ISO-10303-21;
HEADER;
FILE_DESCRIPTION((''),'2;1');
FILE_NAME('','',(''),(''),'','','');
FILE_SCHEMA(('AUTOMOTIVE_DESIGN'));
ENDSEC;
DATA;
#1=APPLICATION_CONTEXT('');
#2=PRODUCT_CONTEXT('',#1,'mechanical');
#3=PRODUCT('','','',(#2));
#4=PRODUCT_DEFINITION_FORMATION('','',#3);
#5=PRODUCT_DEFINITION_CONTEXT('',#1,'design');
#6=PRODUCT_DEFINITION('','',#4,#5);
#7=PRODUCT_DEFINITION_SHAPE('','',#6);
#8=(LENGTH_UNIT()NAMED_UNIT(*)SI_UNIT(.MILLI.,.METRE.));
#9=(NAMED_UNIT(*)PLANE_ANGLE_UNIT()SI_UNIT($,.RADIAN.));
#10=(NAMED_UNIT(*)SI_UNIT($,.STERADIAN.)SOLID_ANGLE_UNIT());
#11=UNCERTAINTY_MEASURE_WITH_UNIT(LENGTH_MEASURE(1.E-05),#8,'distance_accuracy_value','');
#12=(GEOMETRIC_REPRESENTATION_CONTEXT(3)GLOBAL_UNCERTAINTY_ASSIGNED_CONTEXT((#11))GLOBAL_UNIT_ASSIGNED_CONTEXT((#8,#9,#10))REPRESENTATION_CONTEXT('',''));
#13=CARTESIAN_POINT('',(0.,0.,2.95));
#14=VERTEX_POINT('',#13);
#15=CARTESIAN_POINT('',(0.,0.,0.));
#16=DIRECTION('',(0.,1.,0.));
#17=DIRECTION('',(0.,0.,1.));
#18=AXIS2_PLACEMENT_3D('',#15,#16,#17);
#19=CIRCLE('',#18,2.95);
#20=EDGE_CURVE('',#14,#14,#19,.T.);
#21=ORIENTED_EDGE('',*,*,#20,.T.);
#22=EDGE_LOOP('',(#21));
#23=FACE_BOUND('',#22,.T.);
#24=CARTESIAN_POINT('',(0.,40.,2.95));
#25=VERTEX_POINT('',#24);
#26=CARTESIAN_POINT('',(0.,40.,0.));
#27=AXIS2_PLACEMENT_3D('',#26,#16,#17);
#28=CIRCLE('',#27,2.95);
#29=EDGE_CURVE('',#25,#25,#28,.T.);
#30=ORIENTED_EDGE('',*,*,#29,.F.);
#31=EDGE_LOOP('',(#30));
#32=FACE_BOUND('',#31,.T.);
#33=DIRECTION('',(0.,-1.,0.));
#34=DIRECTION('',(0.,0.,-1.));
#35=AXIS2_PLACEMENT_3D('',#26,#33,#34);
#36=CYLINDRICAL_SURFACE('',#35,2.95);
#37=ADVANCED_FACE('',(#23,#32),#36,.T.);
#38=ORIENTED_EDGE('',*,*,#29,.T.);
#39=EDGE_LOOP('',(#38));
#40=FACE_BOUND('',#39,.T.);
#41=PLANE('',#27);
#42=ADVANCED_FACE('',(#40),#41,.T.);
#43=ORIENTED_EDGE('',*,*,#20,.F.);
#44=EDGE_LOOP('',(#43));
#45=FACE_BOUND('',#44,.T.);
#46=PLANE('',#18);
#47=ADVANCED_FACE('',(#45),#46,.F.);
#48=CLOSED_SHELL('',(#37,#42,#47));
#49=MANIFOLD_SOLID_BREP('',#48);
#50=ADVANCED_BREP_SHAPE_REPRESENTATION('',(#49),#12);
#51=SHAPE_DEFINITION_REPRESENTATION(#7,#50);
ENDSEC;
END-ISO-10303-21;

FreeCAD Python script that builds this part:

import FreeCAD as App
import Part
import Sketcher

V = App.Vector
Q = App.Units.Quantity

doc = App.newDocument("Part")
params = doc.addObject("Spreadsheet::Sheet", "Params")
for row, (alias, value) in enumerate([
    ("sketch1_diameter", "5.9 mm"),
    ("pad1_length", "40 mm"),
], start=1):
    params.set(f"A{row}", alias)
    params.set(f"B{row}", "=" + value)
    params.setAlias(f"B{row}", alias)

body = doc.addObject("PartDesign::Body", "Body")

# Sketch on XZ plane
sketch1 = body.newObject("Sketcher::SketchObject", "Sketch")
sketch1.AttachmentSupport = (doc.getObject("XZ_Plane"), [""])
sketch1.MapMode = "FlatFace"
sketch1.addGeometry(Part.Circle(V(0, 0, 0), V(0, 0, 1), 3), False)
sketch1.addConstraint([
    Sketcher.Constraint("Coincident", 0, 3, -1, 1),
    Sketcher.Constraint("Diameter", 0, Q("5.9 mm")),
])
sketch1.setExpression("Constraints[1]", "Params.sketch1_diameter")
pad1 = body.newObject("PartDesign::Pad", "Pad")
pad1.Profile = sketch1
pad1.setExpression("Length", "Params.pad1_length")
pad1.Reversed = True

doc.recompute()
